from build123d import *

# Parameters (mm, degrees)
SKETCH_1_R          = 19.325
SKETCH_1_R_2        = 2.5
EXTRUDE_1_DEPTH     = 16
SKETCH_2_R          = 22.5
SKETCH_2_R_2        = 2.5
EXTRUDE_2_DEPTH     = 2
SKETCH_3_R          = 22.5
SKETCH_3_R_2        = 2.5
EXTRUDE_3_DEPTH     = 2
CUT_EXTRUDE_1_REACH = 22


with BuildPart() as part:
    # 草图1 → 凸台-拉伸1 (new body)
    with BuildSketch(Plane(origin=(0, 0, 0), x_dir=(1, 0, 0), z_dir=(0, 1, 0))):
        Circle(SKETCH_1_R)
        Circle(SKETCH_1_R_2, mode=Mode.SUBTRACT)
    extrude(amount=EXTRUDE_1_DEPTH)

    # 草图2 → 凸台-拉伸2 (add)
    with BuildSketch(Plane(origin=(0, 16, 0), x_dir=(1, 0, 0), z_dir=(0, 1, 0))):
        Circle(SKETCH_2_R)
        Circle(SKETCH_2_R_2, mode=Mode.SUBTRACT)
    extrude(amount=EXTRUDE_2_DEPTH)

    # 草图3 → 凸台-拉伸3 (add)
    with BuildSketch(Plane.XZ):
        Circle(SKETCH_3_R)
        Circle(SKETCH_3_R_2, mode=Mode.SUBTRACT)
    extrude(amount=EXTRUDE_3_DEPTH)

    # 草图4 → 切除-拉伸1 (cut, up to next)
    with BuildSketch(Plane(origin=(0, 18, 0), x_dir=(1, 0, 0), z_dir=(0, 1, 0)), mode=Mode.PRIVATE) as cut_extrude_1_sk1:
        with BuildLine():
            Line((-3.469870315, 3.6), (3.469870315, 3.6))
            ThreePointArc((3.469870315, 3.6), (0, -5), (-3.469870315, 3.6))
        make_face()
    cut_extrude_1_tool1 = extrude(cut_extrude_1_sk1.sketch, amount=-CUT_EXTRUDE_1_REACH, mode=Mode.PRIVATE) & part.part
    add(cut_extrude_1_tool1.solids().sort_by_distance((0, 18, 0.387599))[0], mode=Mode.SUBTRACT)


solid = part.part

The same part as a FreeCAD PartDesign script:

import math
import FreeCAD as App
import Part
import Sketcher
from FreeCAD import Vector
Q = App.Units.Quantity

doc = App.newDocument("Part")
body = doc.addObject("PartDesign::Body", "Body")

# Sketch on XZ plane
sketch1 = body.newObject("Sketcher::SketchObject", "Sketch")
sketch1.AttachmentSupport = (doc.getObject("XZ_Plane"), [""])
sketch1.MapMode = "FlatFace"
sketch1.addGeometry([
    Part.Circle(Vector(0, 0, 0), Vector(0, 0, 1), 19.325),
    Part.Circle(Vector(0, 0, 0), Vector(0, 0, 1), 2.5),
], False)
sketch1.addConstraint([
    Sketcher.Constraint("Coincident", 0, 3, -1, 1),
    Sketcher.Constraint("Coincident", 1, 3, -1, 1),
    Sketcher.Constraint("Diameter", 1, Q("5 mm")),
    Sketcher.Constraint("Diameter", 0, Q("38.65 mm")),
])
pad1 = body.newObject("PartDesign::Pad", "Pad")
pad1.Profile = sketch1
pad1.Length = 16
pad1.Reversed = True

# Sketch on XZ plane
sketch2 = body.newObject("Sketcher::SketchObject", "Sketch001")
sketch2.AttachmentSupport = (doc.getObject("XZ_Plane"), [""])
sketch2.MapMode = "FlatFace"
sketch2.AttachmentOffset = App.Placement(Vector(0, 0, -16), App.Rotation())
sketch2.addGeometry([
    Part.Circle(Vector(0, 0, 0), Vector(0, 0, 1), 22.5),
    Part.Circle(Vector(0, 0, 0), Vector(0, 0, 1), 2.5),
], False)
sketch2.addConstraint([
    Sketcher.Constraint("Coincident", 0, 3, -1, 1),
    Sketcher.Constraint("Coincident", 1, 3, -1, 1),
    Sketcher.Constraint("Diameter", 0, Q("45 mm")),
    Sketcher.Constraint("Diameter", 1, Q("5 mm")),
])
pad2 = body.newObject("PartDesign::Pad", "Pad001")
pad2.Profile = sketch2
pad2.Length = 2
pad2.Reversed = True

# Sketch on XZ plane
sketch3 = body.newObject("Sketcher::SketchObject", "Sketch002")
sketch3.AttachmentSupport = (doc.getObject("XZ_Plane"), [""])
sketch3.MapMode = "FlatFace"
sketch3.addGeometry([
    Part.Circle(Vector(0, 0, 0), Vector(0, 0, 1), 22.5),
    Part.Circle(Vector(0, 0, 0), Vector(0, 0, 1), 2.5),
], False)
sketch3.addConstraint([
    Sketcher.Constraint("Coincident", 0, 3, -1, 1),
    Sketcher.Constraint("Coincident", 1, 3, -1, 1),
    Sketcher.Constraint("Diameter", 0, Q("45 mm")),
    Sketcher.Constraint("Diameter", 1, Q("5 mm")),
])
pad3 = body.newObject("PartDesign::Pad", "Pad002")
pad3.Profile = sketch3
pad3.Length = 2

# Sketch on XZ plane
sketch4 = body.newObject("Sketcher::SketchObject", "Sketch003")
sketch4.AttachmentSupport = (doc.getObject("XZ_Plane"), [""])
sketch4.MapMode = "FlatFace"
sketch4.AttachmentOffset = App.Placement(Vector(0, 0, -18), App.Rotation())
sketch4.addGeometry([
    Part.LineSegment(Vector(3.46987, -3.6, 0), Vector(-3.46987, -3.6, 0)),
    Part.ArcOfCircle(Part.Circle(Vector(0, 0, 0), Vector(0, 0, 1), 5), math.radians(-46.05448), math.radians(226.05448)),
], False)
sketch4.addConstraint([
    Sketcher.Constraint("Coincident", 0, 1, 1, 1),
    Sketcher.Constraint("Coincident", 1, 2, 0, 2),
    Sketcher.Constraint("Horizontal", 0),
    Sketcher.Constraint("Coincident", 1, 3, -1, 1),
    Sketcher.Constraint("Radius", 1, Q("5 mm")),
    Sketcher.Constraint("DistanceY", 0, 1, -1, 1, Q("3.6 mm")),
])
pocket1 = body.newObject("PartDesign::Pocket", "Pocket")
pocket1.Profile = sketch4
pocket1.Length = 20
pocket1.Reversed = True

doc.recompute()
